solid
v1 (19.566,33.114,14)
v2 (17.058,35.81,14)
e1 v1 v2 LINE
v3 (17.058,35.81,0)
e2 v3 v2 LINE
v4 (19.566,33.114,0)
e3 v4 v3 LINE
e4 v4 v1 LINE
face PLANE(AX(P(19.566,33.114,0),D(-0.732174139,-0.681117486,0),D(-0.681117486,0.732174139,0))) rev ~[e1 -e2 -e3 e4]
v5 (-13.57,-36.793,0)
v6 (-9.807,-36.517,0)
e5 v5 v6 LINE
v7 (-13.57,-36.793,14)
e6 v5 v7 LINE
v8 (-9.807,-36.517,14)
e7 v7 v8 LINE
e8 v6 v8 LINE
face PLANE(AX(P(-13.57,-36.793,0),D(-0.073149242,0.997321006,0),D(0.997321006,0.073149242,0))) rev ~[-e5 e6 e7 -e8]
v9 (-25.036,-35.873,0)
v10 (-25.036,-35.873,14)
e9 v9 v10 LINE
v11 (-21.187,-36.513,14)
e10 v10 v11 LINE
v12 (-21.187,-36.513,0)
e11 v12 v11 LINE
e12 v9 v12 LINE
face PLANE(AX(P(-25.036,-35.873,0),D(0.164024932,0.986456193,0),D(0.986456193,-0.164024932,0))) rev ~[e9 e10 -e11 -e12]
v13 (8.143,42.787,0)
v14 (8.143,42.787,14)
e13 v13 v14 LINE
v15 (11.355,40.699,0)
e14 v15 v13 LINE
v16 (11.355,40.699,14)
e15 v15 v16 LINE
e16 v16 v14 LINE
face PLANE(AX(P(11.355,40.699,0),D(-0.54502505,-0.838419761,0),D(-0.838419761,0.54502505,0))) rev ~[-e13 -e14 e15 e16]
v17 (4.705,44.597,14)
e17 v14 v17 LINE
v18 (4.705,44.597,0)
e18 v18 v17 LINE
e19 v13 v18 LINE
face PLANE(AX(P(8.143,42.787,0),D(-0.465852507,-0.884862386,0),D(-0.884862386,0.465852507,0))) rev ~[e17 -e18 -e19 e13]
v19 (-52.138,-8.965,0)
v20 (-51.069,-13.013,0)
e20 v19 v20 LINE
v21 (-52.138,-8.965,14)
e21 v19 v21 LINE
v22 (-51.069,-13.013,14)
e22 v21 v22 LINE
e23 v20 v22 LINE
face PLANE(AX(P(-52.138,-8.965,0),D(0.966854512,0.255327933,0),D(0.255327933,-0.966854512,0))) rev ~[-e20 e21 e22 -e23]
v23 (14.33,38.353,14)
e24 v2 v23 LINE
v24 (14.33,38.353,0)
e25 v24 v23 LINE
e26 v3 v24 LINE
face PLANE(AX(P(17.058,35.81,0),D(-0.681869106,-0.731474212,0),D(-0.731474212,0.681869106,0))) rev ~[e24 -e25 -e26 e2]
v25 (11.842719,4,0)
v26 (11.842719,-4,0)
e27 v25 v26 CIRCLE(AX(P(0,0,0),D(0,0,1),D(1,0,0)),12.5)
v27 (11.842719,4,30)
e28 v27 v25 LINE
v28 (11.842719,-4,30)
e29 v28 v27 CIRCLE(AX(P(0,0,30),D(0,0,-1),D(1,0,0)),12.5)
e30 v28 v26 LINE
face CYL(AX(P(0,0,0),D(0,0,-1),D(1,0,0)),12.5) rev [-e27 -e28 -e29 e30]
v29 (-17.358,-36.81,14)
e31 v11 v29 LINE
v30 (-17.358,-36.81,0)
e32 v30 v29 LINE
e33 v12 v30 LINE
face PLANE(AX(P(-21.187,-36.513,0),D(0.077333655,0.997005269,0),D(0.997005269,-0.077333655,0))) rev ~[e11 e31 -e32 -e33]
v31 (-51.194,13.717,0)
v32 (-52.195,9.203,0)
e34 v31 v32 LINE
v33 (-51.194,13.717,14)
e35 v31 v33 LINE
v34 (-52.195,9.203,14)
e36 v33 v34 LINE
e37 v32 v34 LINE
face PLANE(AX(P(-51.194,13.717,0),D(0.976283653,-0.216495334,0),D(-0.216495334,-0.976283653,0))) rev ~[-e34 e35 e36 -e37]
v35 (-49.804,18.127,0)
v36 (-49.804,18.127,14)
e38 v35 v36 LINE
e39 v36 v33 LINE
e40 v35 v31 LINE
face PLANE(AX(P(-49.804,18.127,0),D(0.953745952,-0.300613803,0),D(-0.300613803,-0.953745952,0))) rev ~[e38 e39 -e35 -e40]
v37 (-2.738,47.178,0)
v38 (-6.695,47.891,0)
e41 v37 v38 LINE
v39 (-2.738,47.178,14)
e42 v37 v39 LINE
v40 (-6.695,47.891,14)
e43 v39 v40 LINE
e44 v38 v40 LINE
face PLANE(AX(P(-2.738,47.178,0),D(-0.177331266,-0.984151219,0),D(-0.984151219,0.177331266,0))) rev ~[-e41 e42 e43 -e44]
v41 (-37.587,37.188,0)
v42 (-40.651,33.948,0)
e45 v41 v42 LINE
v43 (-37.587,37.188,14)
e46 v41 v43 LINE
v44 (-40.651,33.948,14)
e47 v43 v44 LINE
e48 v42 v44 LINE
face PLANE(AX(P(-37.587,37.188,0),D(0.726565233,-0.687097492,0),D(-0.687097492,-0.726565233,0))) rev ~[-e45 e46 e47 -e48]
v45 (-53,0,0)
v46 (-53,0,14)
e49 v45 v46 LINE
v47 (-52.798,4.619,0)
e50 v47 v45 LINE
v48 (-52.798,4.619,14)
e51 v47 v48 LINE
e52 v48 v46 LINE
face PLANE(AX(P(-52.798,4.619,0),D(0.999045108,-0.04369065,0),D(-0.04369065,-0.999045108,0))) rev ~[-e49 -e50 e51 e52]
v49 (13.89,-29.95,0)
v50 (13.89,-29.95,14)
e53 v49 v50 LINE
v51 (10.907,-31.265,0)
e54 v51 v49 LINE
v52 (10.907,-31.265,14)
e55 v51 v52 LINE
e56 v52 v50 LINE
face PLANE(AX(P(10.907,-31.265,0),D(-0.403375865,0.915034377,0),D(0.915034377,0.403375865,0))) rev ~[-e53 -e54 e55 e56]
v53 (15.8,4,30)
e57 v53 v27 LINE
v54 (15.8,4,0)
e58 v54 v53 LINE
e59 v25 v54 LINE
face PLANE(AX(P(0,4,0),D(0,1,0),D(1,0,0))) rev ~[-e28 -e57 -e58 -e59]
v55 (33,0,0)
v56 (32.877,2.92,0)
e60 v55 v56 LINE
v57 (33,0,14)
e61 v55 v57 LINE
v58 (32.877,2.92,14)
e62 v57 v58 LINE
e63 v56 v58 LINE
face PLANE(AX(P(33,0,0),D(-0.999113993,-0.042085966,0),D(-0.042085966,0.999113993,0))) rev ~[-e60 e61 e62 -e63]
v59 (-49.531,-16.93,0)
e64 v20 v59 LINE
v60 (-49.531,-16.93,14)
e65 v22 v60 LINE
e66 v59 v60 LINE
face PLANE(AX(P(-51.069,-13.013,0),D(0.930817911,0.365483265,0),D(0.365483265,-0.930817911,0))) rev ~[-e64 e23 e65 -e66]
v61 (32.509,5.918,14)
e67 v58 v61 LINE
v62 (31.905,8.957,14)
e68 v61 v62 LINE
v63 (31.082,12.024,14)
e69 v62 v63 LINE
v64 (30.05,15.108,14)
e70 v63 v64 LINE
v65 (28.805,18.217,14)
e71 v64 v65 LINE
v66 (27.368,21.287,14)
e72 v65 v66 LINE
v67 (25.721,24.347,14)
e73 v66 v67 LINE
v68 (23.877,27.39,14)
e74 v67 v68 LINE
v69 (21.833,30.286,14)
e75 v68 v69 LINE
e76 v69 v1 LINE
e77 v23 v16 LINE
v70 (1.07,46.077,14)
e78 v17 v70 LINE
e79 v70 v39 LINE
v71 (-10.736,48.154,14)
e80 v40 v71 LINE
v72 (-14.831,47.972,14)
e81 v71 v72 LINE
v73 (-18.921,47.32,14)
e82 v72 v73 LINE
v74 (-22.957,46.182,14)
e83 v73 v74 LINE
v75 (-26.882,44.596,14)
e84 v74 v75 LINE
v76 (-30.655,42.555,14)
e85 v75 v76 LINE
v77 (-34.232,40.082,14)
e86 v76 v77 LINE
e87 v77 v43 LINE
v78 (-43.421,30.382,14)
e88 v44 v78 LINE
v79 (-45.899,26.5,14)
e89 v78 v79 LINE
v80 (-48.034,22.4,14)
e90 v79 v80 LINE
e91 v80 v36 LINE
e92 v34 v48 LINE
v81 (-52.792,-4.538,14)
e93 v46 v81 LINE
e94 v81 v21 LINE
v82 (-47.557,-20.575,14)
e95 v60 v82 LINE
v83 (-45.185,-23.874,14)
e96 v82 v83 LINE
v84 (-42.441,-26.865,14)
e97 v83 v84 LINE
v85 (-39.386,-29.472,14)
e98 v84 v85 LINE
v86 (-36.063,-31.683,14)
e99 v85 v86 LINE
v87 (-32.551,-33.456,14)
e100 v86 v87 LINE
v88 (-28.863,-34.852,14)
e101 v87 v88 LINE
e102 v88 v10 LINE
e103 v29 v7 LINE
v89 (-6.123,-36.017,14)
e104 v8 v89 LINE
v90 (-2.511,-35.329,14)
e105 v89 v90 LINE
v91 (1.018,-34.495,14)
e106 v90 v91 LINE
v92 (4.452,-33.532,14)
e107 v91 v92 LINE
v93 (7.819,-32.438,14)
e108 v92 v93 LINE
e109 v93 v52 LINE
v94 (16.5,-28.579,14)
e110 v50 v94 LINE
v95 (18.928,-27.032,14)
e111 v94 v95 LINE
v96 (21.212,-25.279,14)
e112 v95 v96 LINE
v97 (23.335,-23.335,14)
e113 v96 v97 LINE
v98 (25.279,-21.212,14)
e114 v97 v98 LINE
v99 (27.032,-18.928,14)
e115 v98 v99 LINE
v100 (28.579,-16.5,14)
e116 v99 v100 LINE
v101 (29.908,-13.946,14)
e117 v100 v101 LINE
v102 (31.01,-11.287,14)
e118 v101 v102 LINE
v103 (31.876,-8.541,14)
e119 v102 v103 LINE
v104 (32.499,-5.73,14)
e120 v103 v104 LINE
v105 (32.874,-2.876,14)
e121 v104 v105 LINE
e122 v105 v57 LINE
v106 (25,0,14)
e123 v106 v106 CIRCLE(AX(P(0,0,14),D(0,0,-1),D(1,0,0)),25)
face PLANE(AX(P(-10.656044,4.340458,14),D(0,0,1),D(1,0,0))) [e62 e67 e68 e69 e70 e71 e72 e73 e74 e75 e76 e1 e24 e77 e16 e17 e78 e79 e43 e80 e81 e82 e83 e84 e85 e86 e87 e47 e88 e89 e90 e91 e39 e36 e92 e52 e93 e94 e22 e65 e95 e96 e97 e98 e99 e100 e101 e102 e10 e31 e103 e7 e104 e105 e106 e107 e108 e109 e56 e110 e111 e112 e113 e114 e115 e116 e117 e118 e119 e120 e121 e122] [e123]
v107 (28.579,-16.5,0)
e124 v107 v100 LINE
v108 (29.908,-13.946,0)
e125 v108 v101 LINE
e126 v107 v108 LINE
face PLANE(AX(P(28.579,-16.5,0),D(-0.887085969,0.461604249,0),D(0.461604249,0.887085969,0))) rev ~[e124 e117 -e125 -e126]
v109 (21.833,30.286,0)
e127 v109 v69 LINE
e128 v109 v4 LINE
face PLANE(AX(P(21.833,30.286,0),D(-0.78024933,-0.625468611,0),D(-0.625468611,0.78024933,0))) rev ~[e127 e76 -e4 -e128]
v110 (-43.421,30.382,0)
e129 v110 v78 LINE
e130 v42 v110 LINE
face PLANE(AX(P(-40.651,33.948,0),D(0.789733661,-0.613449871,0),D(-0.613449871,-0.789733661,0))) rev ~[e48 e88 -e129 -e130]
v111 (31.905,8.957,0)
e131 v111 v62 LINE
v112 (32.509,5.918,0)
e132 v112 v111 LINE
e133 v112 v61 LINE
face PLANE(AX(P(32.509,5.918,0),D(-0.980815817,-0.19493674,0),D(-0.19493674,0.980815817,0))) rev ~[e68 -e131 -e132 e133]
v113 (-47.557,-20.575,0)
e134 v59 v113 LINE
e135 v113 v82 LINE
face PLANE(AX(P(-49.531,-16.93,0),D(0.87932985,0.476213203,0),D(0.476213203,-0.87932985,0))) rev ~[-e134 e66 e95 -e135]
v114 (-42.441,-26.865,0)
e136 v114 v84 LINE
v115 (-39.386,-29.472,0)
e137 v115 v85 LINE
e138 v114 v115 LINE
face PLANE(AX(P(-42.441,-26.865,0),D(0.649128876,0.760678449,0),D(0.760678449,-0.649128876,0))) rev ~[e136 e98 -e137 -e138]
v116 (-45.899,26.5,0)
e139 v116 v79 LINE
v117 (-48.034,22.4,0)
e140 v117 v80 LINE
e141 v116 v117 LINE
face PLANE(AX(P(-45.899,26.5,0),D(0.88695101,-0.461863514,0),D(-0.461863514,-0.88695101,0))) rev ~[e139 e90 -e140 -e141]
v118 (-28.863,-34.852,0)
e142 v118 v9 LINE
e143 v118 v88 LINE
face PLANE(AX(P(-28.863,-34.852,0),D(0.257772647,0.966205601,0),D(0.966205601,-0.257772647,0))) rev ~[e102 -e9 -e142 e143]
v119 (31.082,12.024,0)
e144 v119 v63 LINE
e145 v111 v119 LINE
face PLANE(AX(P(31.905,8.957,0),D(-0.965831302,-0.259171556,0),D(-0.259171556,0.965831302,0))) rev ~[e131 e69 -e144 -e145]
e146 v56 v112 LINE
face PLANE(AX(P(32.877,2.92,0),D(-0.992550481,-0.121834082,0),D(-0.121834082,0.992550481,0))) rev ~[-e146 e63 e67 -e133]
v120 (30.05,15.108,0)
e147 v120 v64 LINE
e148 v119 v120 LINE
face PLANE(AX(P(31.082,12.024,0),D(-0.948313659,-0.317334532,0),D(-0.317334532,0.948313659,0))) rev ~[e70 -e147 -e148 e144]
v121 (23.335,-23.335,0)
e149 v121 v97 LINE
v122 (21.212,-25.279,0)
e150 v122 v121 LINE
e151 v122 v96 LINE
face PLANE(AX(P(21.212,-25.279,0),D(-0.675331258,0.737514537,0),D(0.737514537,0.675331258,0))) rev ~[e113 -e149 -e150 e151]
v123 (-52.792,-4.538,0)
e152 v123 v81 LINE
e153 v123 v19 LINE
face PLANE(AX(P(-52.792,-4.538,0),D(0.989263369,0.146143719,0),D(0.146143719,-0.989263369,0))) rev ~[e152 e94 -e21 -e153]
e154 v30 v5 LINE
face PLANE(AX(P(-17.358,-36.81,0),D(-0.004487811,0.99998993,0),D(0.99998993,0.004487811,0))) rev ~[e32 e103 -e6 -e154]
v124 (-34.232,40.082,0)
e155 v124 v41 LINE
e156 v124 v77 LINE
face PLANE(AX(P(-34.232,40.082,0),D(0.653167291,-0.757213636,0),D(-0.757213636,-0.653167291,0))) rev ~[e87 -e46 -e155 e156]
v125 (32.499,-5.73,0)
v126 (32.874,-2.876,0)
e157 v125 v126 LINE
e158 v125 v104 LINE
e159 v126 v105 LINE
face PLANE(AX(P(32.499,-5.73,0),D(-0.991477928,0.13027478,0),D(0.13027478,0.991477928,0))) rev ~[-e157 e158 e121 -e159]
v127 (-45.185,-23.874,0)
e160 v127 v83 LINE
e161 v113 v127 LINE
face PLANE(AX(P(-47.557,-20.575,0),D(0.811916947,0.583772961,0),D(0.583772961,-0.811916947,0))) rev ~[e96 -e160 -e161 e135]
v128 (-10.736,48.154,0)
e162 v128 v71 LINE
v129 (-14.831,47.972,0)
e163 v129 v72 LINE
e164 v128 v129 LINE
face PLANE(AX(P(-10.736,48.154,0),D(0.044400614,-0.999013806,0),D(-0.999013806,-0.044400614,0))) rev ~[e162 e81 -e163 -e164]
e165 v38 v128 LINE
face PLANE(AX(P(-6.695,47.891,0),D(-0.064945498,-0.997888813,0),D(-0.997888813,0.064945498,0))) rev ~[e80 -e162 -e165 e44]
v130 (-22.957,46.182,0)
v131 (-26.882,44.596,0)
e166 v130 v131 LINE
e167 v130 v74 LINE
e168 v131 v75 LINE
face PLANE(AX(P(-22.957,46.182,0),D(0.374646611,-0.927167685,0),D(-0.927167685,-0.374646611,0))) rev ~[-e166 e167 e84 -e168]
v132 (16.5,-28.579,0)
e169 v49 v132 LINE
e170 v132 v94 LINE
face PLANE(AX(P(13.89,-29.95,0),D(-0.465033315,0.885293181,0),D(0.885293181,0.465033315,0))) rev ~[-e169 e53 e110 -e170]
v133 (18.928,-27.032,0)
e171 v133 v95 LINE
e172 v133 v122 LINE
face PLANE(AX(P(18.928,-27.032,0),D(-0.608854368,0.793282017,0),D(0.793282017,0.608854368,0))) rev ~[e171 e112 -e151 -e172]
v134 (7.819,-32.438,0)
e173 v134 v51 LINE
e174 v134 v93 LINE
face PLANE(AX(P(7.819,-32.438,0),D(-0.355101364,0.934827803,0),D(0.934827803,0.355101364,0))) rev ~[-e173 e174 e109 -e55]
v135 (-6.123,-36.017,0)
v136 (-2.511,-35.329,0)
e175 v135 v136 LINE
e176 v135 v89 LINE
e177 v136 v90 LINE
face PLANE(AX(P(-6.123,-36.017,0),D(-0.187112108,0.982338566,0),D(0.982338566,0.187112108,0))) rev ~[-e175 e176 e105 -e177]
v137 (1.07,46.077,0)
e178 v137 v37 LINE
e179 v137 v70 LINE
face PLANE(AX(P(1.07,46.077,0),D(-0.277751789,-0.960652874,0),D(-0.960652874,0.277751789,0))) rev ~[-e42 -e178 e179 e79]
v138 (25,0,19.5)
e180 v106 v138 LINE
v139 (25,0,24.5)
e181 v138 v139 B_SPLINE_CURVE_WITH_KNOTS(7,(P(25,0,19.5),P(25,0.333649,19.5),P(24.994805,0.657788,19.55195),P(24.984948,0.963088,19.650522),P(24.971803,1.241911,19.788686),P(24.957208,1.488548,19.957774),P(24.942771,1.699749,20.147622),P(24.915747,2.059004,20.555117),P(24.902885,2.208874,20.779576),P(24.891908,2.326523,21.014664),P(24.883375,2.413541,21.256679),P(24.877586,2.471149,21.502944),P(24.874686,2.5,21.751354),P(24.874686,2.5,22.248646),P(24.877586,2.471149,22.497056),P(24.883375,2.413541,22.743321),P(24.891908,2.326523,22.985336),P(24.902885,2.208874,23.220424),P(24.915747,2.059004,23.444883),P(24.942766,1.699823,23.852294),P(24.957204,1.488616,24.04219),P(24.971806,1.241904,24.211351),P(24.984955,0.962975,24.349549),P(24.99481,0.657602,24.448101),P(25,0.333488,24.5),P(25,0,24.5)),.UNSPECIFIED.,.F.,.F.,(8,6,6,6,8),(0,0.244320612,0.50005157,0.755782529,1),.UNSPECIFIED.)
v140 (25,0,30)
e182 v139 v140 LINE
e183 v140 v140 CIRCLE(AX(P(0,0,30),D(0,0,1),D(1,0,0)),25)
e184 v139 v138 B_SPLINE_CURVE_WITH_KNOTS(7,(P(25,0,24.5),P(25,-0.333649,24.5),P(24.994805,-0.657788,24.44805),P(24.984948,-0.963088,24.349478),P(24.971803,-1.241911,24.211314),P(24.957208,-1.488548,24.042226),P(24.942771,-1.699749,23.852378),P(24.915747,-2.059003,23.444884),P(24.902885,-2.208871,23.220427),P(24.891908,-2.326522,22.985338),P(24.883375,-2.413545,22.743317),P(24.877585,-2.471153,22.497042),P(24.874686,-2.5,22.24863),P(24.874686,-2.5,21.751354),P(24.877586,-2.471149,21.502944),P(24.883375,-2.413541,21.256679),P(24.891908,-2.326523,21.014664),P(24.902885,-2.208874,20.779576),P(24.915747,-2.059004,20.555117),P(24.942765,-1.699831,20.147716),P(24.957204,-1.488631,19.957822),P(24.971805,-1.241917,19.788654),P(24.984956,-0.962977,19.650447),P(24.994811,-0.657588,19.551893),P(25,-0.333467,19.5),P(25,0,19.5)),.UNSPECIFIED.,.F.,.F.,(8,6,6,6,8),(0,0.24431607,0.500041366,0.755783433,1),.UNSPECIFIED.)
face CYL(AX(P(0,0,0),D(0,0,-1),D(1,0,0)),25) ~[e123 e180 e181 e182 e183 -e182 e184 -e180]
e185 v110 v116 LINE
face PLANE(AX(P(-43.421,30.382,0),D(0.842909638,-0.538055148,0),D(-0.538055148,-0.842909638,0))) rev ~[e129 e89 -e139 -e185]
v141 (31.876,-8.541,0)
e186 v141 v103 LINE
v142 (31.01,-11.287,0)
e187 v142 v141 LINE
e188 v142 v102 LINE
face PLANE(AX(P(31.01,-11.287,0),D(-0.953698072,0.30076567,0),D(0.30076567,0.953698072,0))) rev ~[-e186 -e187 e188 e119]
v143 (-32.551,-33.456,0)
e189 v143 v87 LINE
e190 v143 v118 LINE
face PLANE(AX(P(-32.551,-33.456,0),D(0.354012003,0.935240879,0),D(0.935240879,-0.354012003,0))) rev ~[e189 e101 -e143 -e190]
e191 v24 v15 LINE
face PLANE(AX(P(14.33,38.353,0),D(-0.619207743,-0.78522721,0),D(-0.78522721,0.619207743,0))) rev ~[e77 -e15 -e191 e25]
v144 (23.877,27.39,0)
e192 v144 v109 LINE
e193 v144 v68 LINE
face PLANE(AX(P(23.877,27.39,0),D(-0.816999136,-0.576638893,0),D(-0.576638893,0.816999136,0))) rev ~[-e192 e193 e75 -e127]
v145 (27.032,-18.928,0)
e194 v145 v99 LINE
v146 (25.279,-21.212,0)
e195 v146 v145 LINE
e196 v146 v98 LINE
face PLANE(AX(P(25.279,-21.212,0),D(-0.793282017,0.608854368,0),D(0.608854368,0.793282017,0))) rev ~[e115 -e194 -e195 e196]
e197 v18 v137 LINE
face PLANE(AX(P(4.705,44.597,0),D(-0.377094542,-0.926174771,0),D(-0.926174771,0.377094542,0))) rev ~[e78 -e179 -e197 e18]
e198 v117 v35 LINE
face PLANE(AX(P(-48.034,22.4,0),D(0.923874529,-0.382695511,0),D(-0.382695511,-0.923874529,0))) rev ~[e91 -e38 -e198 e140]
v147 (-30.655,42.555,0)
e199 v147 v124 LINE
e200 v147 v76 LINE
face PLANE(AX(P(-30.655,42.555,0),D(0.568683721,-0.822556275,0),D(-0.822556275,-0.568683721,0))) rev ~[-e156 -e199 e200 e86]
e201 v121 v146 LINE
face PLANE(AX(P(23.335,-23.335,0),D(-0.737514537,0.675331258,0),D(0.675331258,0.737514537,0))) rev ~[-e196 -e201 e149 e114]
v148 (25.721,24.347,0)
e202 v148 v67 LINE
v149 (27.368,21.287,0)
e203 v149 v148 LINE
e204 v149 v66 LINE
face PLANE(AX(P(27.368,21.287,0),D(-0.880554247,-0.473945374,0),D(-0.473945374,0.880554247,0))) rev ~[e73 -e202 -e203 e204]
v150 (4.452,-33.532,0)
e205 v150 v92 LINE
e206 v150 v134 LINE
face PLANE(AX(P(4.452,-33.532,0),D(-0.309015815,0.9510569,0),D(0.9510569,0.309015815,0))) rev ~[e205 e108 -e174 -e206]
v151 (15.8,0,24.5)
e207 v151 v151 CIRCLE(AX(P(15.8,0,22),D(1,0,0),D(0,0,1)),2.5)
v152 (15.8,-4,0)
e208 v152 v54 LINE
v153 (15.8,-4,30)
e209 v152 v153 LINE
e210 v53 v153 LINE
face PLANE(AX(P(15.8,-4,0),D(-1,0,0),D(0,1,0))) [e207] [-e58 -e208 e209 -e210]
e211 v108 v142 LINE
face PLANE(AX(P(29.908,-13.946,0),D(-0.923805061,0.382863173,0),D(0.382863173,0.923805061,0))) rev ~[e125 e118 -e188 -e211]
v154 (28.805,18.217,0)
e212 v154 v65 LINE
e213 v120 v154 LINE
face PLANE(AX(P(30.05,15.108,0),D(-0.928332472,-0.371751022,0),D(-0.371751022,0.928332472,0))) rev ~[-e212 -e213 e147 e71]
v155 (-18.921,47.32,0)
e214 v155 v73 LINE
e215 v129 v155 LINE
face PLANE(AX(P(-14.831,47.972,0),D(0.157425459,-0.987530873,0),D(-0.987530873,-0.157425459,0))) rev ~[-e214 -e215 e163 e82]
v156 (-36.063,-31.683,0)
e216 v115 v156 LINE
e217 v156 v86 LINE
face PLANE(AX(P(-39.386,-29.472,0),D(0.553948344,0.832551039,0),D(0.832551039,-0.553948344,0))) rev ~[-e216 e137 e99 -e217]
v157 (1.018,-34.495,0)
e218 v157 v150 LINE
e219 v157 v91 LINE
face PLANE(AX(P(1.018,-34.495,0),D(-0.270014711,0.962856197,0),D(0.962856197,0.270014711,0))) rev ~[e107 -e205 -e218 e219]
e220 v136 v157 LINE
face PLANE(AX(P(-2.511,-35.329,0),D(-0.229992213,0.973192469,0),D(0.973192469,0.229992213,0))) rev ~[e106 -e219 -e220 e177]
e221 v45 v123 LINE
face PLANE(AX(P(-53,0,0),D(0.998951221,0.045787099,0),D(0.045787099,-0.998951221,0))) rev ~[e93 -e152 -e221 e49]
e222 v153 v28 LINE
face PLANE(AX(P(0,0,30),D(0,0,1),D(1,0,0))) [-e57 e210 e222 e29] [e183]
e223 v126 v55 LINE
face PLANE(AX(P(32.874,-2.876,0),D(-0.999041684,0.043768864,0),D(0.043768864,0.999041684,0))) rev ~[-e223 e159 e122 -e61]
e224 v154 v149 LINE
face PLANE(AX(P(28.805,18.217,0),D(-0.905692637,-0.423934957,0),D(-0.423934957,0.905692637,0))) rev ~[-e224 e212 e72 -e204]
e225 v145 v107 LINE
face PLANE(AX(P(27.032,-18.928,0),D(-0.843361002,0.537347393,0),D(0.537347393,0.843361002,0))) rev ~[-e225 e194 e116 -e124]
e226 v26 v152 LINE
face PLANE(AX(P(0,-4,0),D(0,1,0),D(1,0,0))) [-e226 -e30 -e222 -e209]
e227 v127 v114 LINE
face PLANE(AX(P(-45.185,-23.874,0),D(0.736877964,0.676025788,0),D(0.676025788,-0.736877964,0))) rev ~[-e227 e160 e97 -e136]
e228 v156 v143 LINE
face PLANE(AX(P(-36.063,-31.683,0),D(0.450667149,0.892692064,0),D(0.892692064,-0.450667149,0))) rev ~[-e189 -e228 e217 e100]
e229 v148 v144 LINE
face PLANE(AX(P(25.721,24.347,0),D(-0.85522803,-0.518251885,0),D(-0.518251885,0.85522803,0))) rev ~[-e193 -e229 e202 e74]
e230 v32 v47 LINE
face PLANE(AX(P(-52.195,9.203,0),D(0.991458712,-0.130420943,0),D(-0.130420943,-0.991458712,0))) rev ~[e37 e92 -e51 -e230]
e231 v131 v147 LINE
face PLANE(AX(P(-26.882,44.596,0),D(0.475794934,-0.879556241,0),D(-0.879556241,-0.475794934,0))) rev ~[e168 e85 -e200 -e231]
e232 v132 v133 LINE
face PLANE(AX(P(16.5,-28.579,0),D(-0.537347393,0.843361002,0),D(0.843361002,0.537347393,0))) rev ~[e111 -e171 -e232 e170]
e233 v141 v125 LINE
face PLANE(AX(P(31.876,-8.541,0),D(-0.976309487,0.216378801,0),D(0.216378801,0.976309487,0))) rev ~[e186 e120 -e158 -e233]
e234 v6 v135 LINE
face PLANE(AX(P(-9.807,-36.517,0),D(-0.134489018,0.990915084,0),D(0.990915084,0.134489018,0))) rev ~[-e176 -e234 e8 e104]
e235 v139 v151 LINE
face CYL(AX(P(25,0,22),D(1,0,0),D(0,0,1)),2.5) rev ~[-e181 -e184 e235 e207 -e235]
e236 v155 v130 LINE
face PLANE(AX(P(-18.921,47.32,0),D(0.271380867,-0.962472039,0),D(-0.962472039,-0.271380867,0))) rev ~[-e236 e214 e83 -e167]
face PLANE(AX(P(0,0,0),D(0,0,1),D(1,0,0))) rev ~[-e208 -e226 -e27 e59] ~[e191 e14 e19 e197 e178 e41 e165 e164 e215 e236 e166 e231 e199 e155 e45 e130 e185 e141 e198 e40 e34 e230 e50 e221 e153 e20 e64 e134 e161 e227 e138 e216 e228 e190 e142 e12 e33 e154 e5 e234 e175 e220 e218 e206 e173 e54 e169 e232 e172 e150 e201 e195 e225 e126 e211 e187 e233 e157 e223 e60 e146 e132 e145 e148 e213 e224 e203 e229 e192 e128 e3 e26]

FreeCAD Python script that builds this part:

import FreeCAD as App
import Part
import Sketcher

V = App.Vector
Q = App.Units.Quantity

doc = App.newDocument("Part")
body = doc.addObject("PartDesign::Body", "Body")

# Sketch on XY plane
sketch1 = body.newObject("Sketcher::SketchObject", "Sketch")
sketch1.AttachmentSupport = (doc.getObject("XY_Plane"), [""])
sketch1.MapMode = "FlatFace"
sketch1.addGeometry(Part.LineSegment(V(33, 0, 0), V(32.9, 2.9, 0)), False)
sketch1.addGeometry(Part.LineSegment(V(32.9, 2.9, 0), V(32.5, 5.9, 0)), False)
sketch1.addGeometry(Part.LineSegment(V(32.5, 5.9, 0), V(31.9, 9, 0)), False)
sketch1.addGeometry(Part.LineSegment(V(31.9, 9, 0), V(31.1, 12, 0)), False)
sketch1.addGeometry(Part.LineSegment(V(31.1, 12, 0), V(30.1, 15.1, 0)), False)
sketch1.addGeometry(Part.LineSegment(V(30.1, 15.1, 0), V(28.8, 18.2, 0)), False)
sketch1.addGeometry(Part.LineSegment(V(28.8, 18.2, 0), V(27.4, 21.3, 0)), False)
sketch1.addGeometry(Part.LineSegment(V(27.4, 21.3, 0), V(25.7, 24.3, 0)), False)
sketch1.addGeometry(Part.LineSegment(V(25.7, 24.3, 0), V(23.9, 27.4, 0)), False)
sketch1.addGeometry(Part.LineSegment(V(23.9, 27.4, 0), V(21.8, 30.3, 0)), False)
sketch1.addGeometry(Part.LineSegment(V(21.8, 30.3, 0), V(19.6, 33.1, 0)), False)
sketch1.addGeometry(Part.LineSegment(V(19.6, 33.1, 0), V(17.1, 35.8, 0)), False)
sketch1.addGeometry(Part.LineSegment(V(17.1, 35.8, 0), V(14.3, 38.4, 0)), False)
sketch1.addGeometry(Part.LineSegment(V(14.3, 38.4, 0), V(11.4, 40.7, 0)), False)
sketch1.addGeometry(Part.LineSegment(V(11.4, 40.7, 0), V(8.1, 42.8, 0)), False)
sketch1.addGeometry(Part.LineSegment(V(8.1, 42.8, 0), V(4.7, 44.6, 0)), False)
sketch1.addGeometry(Part.LineSegment(V(4.7, 44.6, 0), V(1.1, 46.1, 0)), False)
sketch1.addGeometry(Part.LineSegment(V(1.1, 46.1, 0), V(-2.7, 47.2, 0)), False)
sketch1.addGeometry(Part.LineSegment(V(-2.7, 47.2, 0), V(-6.7, 47.9, 0)), False)
sketch1.addGeometry(Part.LineSegment(V(-6.7, 47.9, 0), V(-10.7, 48.2, 0)), False)
sketch1.addGeometry(Part.LineSegment(V(-10.7, 48.2, 0), V(-14.8, 48, 0)), False)
sketch1.addGeometry(Part.LineSegment(V(-14.8, 48, 0), V(-18.9, 47.3, 0)), False)
sketch1.addGeometry(Part.LineSegment(V(-18.9, 47.3, 0), V(-23, 46.2, 0)), False)
sketch1.addGeometry(Part.LineSegment(V(-23, 46.2, 0), V(-26.9, 44.6, 0)), False)
sketch1.addGeometry(Part.LineSegment(V(-26.9, 44.6, 0), V(-30.7, 42.6, 0)), False)
sketch1.addGeometry(Part.LineSegment(V(-30.7, 42.6, 0), V(-34.2, 40.1, 0)), False)
sketch1.addGeometry(Part.LineSegment(V(-34.2, 40.1, 0), V(-37.6, 37.2, 0)), False)
sketch1.addGeometry(Part.LineSegment(V(-37.6, 37.2, 0), V(-40.7, 33.9, 0)), False)
sketch1.addGeometry(Part.LineSegment(V(-40.7, 33.9, 0), V(-43.4, 30.4, 0)), False)
sketch1.addGeometry(Part.LineSegment(V(-43.4, 30.4, 0), V(-45.9, 26.5, 0)), False)
sketch1.addGeometry(Part.LineSegment(V(-45.9, 26.5, 0), V(-48, 22.4, 0)), False)
sketch1.addGeometry(Part.LineSegment(V(-48, 22.4, 0), V(-49.8, 18.1, 0)), False)
sketch1.addGeometry(Part.LineSegment(V(-49.8, 18.1, 0), V(-51.2, 13.7, 0)), False)
sketch1.addGeometry(Part.LineSegment(V(-51.2, 13.7, 0), V(-52.2, 9.2, 0)), False)
sketch1.addGeometry(Part.LineSegment(V(-52.2, 9.2, 0), V(-52.8, 4.6, 0)), False)
sketch1.addGeometry(Part.LineSegment(V(-52.8, 4.6, 0), V(-53, 0, 0)), False)
sketch1.addGeometry(Part.LineSegment(V(-53, 0, 0), V(-52.8, -4.5, 0)), False)
sketch1.addGeometry(Part.LineSegment(V(-52.8, -4.5, 0), V(-52.1, -9, 0)), False)
sketch1.addGeometry(Part.LineSegment(V(-52.1, -9, 0), V(-51.1, -13, 0)), False)
sketch1.addGeometry(Part.LineSegment(V(-51.1, -13, 0), V(-49.5, -16.9, 0)), False)
sketch1.addGeometry(Part.LineSegment(V(-49.5, -16.9, 0), V(-47.6, -20.6, 0)), False)
sketch1.addGeometry(Part.LineSegment(V(-47.6, -20.6, 0), V(-45.2, -23.9, 0)), False)
sketch1.addGeometry(Part.LineSegment(V(-45.2, -23.9, 0), V(-42.4, -26.9, 0)), False)
sketch1.addGeometry(Part.LineSegment(V(-42.4, -26.9, 0), V(-39.4, -29.5, 0)), False)
sketch1.addGeometry(Part.LineSegment(V(-39.4, -29.5, 0), V(-36.1, -31.7, 0)), False)
sketch1.addGeometry(Part.LineSegment(V(-36.1, -31.7, 0), V(-32.6, -33.5, 0)), False)
sketch1.addGeometry(Part.LineSegment(V(-32.6, -33.5, 0), V(-28.9, -34.9, 0)), False)
sketch1.addGeometry(Part.LineSegment(V(-28.9, -34.9, 0), V(-25, -35.9, 0)), False)
sketch1.addGeometry(Part.LineSegment(V(-25, -35.9, 0), V(-21.2, -36.5, 0)), False)
sketch1.addGeometry(Part.LineSegment(V(-21.2, -36.5, 0), V(-17.4, -36.8, 0)), False)
sketch1.addGeometry(Part.LineSegment(V(-17.4, -36.8, 0), V(-13.6, -36.8, 0)), False)
sketch1.addGeometry(Part.LineSegment(V(-13.6, -36.8, 0), V(-9.8, -36.5, 0)), False)
sketch1.addGeometry(Part.LineSegment(V(-9.8, -36.5, 0), V(-6.1, -36, 0)), False)
sketch1.addGeometry(Part.LineSegment(V(-6.1, -36, 0), V(-2.5, -35.3, 0)), False)
sketch1.addGeometry(Part.LineSegment(V(-2.5, -35.3, 0), V(1, -34.5, 0)), False)
sketch1.addGeometry(Part.LineSegment(V(1, -34.5, 0), V(4.5, -33.5, 0)), False)
sketch1.addGeometry(Part.LineSegment(V(4.5, -33.5, 0), V(7.8, -32.4, 0)), False)
sketch1.addGeometry(Part.LineSegment(V(7.8, -32.4, 0), V(10.9, -31.3, 0)), False)
sketch1.addGeometry(Part.LineSegment(V(10.9, -31.3, 0), V(13.9, -29.9, 0)), False)
sketch1.addGeometry(Part.LineSegment(V(13.9, -29.9, 0), V(16.5, -28.6, 0)), False)
sketch1.addGeometry(Part.LineSegment(V(16.5, -28.6, 0), V(18.9, -27, 0)), False)
sketch1.addGeometry(Part.LineSegment(V(18.9, -27, 0), V(21.2, -25.3, 0)), False)
sketch1.addGeometry(Part.LineSegment(V(21.2, -25.3, 0), V(23.3, -23.3, 0)), False)
sketch1.addGeometry(Part.LineSegment(V(23.3, -23.3, 0), V(25.3, -21.2, 0)), False)
sketch1.addGeometry(Part.LineSegment(V(25.3, -21.2, 0), V(27, -18.9, 0)), False)
sketch1.addGeometry(Part.LineSegment(V(27, -18.9, 0), V(28.6, -16.5, 0)), False)
sketch1.addGeometry(Part.LineSegment(V(28.6, -16.5, 0), V(29.9, -13.9, 0)), False)
sketch1.addGeometry(Part.LineSegment(V(29.9, -13.9, 0), V(31, -11.3, 0)), False)
sketch1.addGeometry(Part.LineSegment(V(31, -11.3, 0), V(31.9, -8.5, 0)), False)
sketch1.addGeometry(Part.LineSegment(V(31.9, -8.5, 0), V(32.5, -5.7, 0)), False)
sketch1.addGeometry(Part.LineSegment(V(32.5, -5.7, 0), V(32.9, -2.9, 0)), False)
sketch1.addGeometry(Part.LineSegment(V(32.9, -2.9, 0), V(33, 0, 0)), False)
sketch1.addConstraint(Sketcher.Constraint("Coincident", 0, 2, 1, 1))
sketch1.addConstraint(Sketcher.Constraint("Coincident", 1, 2, 2, 1))
sketch1.addConstraint(Sketcher.Constraint("Coincident", 2, 2, 3, 1))
sketch1.addConstraint(Sketcher.Constraint("Coincident", 3, 2, 4, 1))
sketch1.addConstraint(Sketcher.Constraint("Coincident", 4, 2, 5, 1))
sketch1.addConstraint(Sketcher.Constraint("Coincident", 5, 2, 6, 1))
sketch1.addConstraint(Sketcher.Constraint("Coincident", 6, 2, 7, 1))
sketch1.addConstraint(Sketcher.Constraint("Coincident", 7, 2, 8, 1))
sketch1.addConstraint(Sketcher.Constraint("Coincident", 8, 2, 9, 1))
sketch1.addConstraint(Sketcher.Constraint("Coincident", 9, 2, 10, 1))
sketch1.addConstraint(Sketcher.Constraint("Coincident", 10, 2, 11, 1))
sketch1.addConstraint(Sketcher.Constraint("Coincident", 11, 2, 12, 1))
sketch1.addConstraint(Sketcher.Constraint("Coincident", 12, 2, 13, 1))
sketch1.addConstraint(Sketcher.Constraint("Coincident", 13, 2, 14, 1))
sketch1.addConstraint(Sketcher.Constraint("Coincident", 14, 2, 15, 1))
sketch1.addConstraint(Sketcher.Constraint("Coincident", 15, 2, 16, 1))
sketch1.addConstraint(Sketcher.Constraint("Coincident", 16, 2, 17, 1))
sketch1.addConstraint(Sketcher.Constraint("Coincident", 17, 2, 18, 1))
sketch1.addConstraint(Sketcher.Constraint("Coincident", 18, 2, 19, 1))
sketch1.addConstraint(Sketcher.Constraint("Coincident", 19, 2, 20, 1))
sketch1.addConstraint(Sketcher.Constraint("Coincident", 20, 2, 21, 1))
sketch1.addConstraint(Sketcher.Constraint("Coincident", 21, 2, 22, 1))
sketch1.addConstraint(Sketcher.Constraint("Coincident", 22, 2, 23, 1))
sketch1.addConstraint(Sketcher.Constraint("Coincident", 23, 2, 24, 1))
sketch1.addConstraint(Sketcher.Constraint("Coincident", 24, 2, 25, 1))
sketch1.addConstraint(Sketcher.Constraint("Coincident", 25, 2, 26, 1))
sketch1.addConstraint(Sketcher.Constraint("Coincident", 26, 2, 27, 1))
sketch1.addConstraint(Sketcher.Constraint("Coincident", 27, 2, 28, 1))
sketch1.addConstraint(Sketcher.Constraint("Coincident", 28, 2, 29, 1))
sketch1.addConstraint(Sketcher.Constraint("Coincident", 29, 2, 30, 1))
sketch1.addConstraint(Sketcher.Constraint("Coincident", 30, 2, 31, 1))
sketch1.addConstraint(Sketcher.Constraint("Coincident", 31, 2, 32, 1))
sketch1.addConstraint(Sketcher.Constraint("Coincident", 32, 2, 33, 1))
sketch1.addConstraint(Sketcher.Constraint("Coincident", 33, 2, 34, 1))
sketch1.addConstraint(Sketcher.Constraint("Coincident", 34, 2, 35, 1))
sketch1.addConstraint(Sketcher.Constraint("Coincident", 35, 2, 36, 1))
sketch1.addConstraint(Sketcher.Constraint("Coincident", 36, 2, 37, 1))
sketch1.addConstraint(Sketcher.Constraint("Coincident", 37, 2, 38, 1))
sketch1.addConstraint(Sketcher.Constraint("Coincident", 38, 2, 39, 1))
sketch1.addConstraint(Sketcher.Constraint("Coincident", 39, 2, 40, 1))
sketch1.addConstraint(Sketcher.Constraint("Coincident", 40, 2, 41, 1))
sketch1.addConstraint(Sketcher.Constraint("Coincident", 41, 2, 42, 1))
sketch1.addConstraint(Sketcher.Constraint("Coincident", 42, 2, 43, 1))
sketch1.addConstraint(Sketcher.Constraint("Coincident", 43, 2, 44, 1))
sketch1.addConstraint(Sketcher.Constraint("Coincident", 44, 2, 45, 1))
sketch1.addConstraint(Sketcher.Constraint("Coincident", 45, 2, 46, 1))
sketch1.addConstraint(Sketcher.Constraint("Coincident", 46, 2, 47, 1))
sketch1.addConstraint(Sketcher.Constraint("Coincident", 47, 2, 48, 1))
sketch1.addConstraint(Sketcher.Constraint("Coincident", 48, 2, 49, 1))
sketch1.addConstraint(Sketcher.Constraint("Coincident", 49, 2, 50, 1))
sketch1.addConstraint(Sketcher.Constraint("Coincident", 50, 2, 51, 1))
sketch1.addConstraint(Sketcher.Constraint("Coincident", 51, 2, 52, 1))
sketch1.addConstraint(Sketcher.Constraint("Coincident", 52, 2, 53, 1))
sketch1.addConstraint(Sketcher.Constraint("Coincident", 53, 2, 54, 1))
sketch1.addConstraint(Sketcher.Constraint("Coincident", 54, 2, 55, 1))
sketch1.addConstraint(Sketcher.Constraint("Coincident", 55, 2, 56, 1))
sketch1.addConstraint(Sketcher.Constraint("Coincident", 56, 2, 57, 1))
sketch1.addConstraint(Sketcher.Constraint("Coincident", 57, 2, 58, 1))
sketch1.addConstraint(Sketcher.Constraint("Coincident", 58, 2, 59, 1))
sketch1.addConstraint(Sketcher.Constraint("Coincident", 59, 2, 60, 1))
sketch1.addConstraint(Sketcher.Constraint("Coincident", 60, 2, 61, 1))
sketch1.addConstraint(Sketcher.Constraint("Coincident", 61, 2, 62, 1))
sketch1.addConstraint(Sketcher.Constraint("Coincident", 62, 2, 63, 1))
sketch1.addConstraint(Sketcher.Constraint("Coincident", 63, 2, 64, 1))
sketch1.addConstraint(Sketcher.Constraint("Coincident", 64, 2, 65, 1))
sketch1.addConstraint(Sketcher.Constraint("Coincident", 65, 2, 66, 1))
sketch1.addConstraint(Sketcher.Constraint("Coincident", 66, 2, 67, 1))
sketch1.addConstraint(Sketcher.Constraint("Coincident", 67, 2, 68, 1))
sketch1.addConstraint(Sketcher.Constraint("Coincident", 68, 2, 69, 1))
sketch1.addConstraint(Sketcher.Constraint("Coincident", 69, 2, 70, 1))
sketch1.addConstraint(Sketcher.Constraint("Coincident", 70, 2, 71, 1))
sketch1.addConstraint(Sketcher.Constraint("Coincident", 71, 2, 0, 1))
sketch1.addConstraint(Sketcher.Constraint("PointOnObject", 35, 2, -1))
sketch1.addConstraint(Sketcher.Constraint("PointOnObject", 71, 2, -1))
sketch1.addConstraint(Sketcher.Constraint("Equal", 62, 63))
sketch1.addConstraint(Sketcher.Constraint("Equal", 61, 64))
sketch1.addConstraint(Sketcher.Constraint("Equal", 60, 65))
sketch1.addConstraint(Sketcher.Constraint("DistanceX", 35, 2, -1, 1, Q("53 mm")))
sketch1.addConstraint(Sketcher.Constraint("DistanceX", -1, 1, 71, 2, Q("33 mm")))
sketch1.addConstraint(Sketcher.Constraint("DistanceY", -1, 1, 29, 2, Q("26.5 mm")))
sketch1.addConstraint(Sketcher.Constraint("DistanceY", -1, 1, 30, 2, Q("22.4 mm")))
sketch1.addConstraint(Sketcher.Constraint("DistanceX", -1, 1, 59, 2, Q("16.5 mm")))
sketch1.addConstraint(Sketcher.Constraint("DistanceY", 65, 2, -1, 1, Q("16.5 mm")))
sketch1.addConstraint(Sketcher.Constraint("DistanceY", -1, 1, 0, 2, Q("2.92 mm")))
sketch1.addConstraint(Sketcher.Constraint("DistanceX", -1, 1, 4, 2, Q("30.05 mm")))
sketch1.addConstraint(Sketcher.Constraint("DistanceY", -1, 1, 8, 2, Q("27.39 mm")))
sketch1.addConstraint(Sketcher.Constraint("DistanceY", -1, 1, 11, 2, Q("35.81 mm")))
sketch1.addConstraint(Sketcher.Constraint("DistanceX", -1, 1, 12, 2, Q("14.33 mm")))
sketch1.addConstraint(Sketcher.Constraint("DistanceX", -1, 1, 16, 2, Q("1.07 mm")))
sketch1.addConstraint(Sketcher.Constraint("DistanceY", -1, 1, 21, 2, Q("47.32 mm")))
sketch1.addConstraint(Sketcher.Constraint("DistanceY", 39, 2, -1, 1, Q("16.93 mm")))
sketch1.addConstraint(Sketcher.Constraint("DistanceY", 49, 2, -1, 1, Q("36.81 mm")))
sketch1.addConstraint(Sketcher.Constraint("DistanceX", 50, 2, -1, 1, Q("13.57 mm")))
sketch1.addConstraint(Sketcher.Constraint("DistanceX", -1, 1, 58, 2, Q("13.89 mm")))
sketch1.addConstraint(Sketcher.Constraint("DistanceY", 58, 2, -1, 1, Q("29.95 mm")))
sketch1.addConstraint(Sketcher.Constraint("DistanceX", -1, 1, 67, 2, Q("31.01 mm")))
sketch1.addConstraint(Sketcher.Constraint("DistanceY", 69, 2, -1, 1, Q("5.73 mm")))
sketch1.addConstraint(Sketcher.Constraint("DistanceX", -1, 1, 0, 2, Q("32.877 mm")))
sketch1.addConstraint(Sketcher.Constraint("DistanceX", -1, 1, 1, 2, Q("32.509 mm")))
sketch1.addConstraint(Sketcher.Constraint("DistanceY", -1, 1, 1, 2, Q("5.918 mm")))
sketch1.addConstraint(Sketcher.Constraint("DistanceX", -1, 1, 2, 2, Q("31.905 mm")))
sketch1.addConstraint(Sketcher.Constraint("DistanceY", -1, 1, 2, 2, Q("8.957 mm")))
sketch1.addConstraint(Sketcher.Constraint("DistanceX", -1, 1, 3, 2, Q("31.082 mm")))
sketch1.addConstraint(Sketcher.Constraint("DistanceY", -1, 1, 3, 2, Q("12.024 mm")))
sketch1.addConstraint(Sketcher.Constraint("DistanceY", -1, 1, 4, 2, Q("15.108 mm")))
sketch1.addConstraint(Sketcher.Constraint("DistanceX", -1, 1, 5, 2, Q("28.805 mm")))
sketch1.addConstraint(Sketcher.Constraint("DistanceY", -1, 1, 5, 2, Q("18.217 mm")))
sketch1.addConstraint(Sketcher.Constraint("DistanceX", -1, 1, 6, 2, Q("27.368 mm")))
sketch1.addConstraint(Sketcher.Constraint("DistanceY", -1, 1, 6, 2, Q("21.287 mm")))
sketch1.addConstraint(Sketcher.Constraint("DistanceX", -1, 1, 7, 2, Q("25.721 mm")))
sketch1.addConstraint(Sketcher.Constraint("DistanceY", -1, 1, 7, 2, Q("24.347 mm")))
sketch1.addConstraint(Sketcher.Constraint("DistanceX", -1, 1, 8, 2, Q("23.877 mm")))
sketch1.addConstraint(Sketcher.Constraint("DistanceX", -1, 1, 9, 2, Q("21.833 mm")))
sketch1.addConstraint(Sketcher.Constraint("DistanceY", -1, 1, 9, 2, Q("30.286 mm")))
sketch1.addConstraint(Sketcher.Constraint("DistanceX", -1, 1, 10, 2, Q("19.566 mm")))
sketch1.addConstraint(Sketcher.Constraint("DistanceY", -1, 1, 10, 2, Q("33.114 mm")))
sketch1.addConstraint(Sketcher.Constraint("DistanceX", -1, 1, 11, 2, Q("17.058 mm")))
sketch1.addConstraint(Sketcher.Constraint("DistanceY", -1, 1, 12, 2, Q("38.353 mm")))
sketch1.addConstraint(Sketcher.Constraint("DistanceX", -1, 1, 13, 2, Q("11.355 mm")))
sketch1.addConstraint(Sketcher.Constraint("DistanceY", -1, 1, 13, 2, Q("40.699 mm")))
sketch1.addConstraint(Sketcher.Constraint("DistanceX", -1, 1, 14, 2, Q("8.143 mm")))
sketch1.addConstraint(Sketcher.Constraint("DistanceY", -1, 1, 14, 2, Q("42.787 mm")))
sketch1.addConstraint(Sketcher.Constraint("DistanceX", -1, 1, 15, 2, Q("4.705 mm")))
sketch1.addConstraint(Sketcher.Constraint("DistanceY", -1, 1, 15, 2, Q("44.597 mm")))
sketch1.addConstraint(Sketcher.Constraint("DistanceY", -1, 1, 16, 2, Q("46.077 mm")))
sketch1.addConstraint(Sketcher.Constraint("DistanceX", 17, 2, -1, 1, Q("2.738 mm")))
sketch1.addConstraint(Sketcher.Constraint("DistanceY", -1, 1, 17, 2, Q("47.178 mm")))
sketch1.addConstraint(Sketcher.Constraint("DistanceX", 18, 2, -1, 1, Q("6.695 mm")))
sketch1.addConstraint(Sketcher.Constraint("DistanceY", -1, 1, 18, 2, Q("47.891 mm")))
sketch1.addConstraint(Sketcher.Constraint("DistanceX", 19, 2, -1, 1, Q("10.736 mm")))
sketch1.addConstraint(Sketcher.Constraint("DistanceY", -1, 1, 19, 2, Q("48.154 mm")))
sketch1.addConstraint(Sketcher.Constraint("DistanceX", 20, 2, -1, 1, Q("14.831 mm")))
sketch1.addConstraint(Sketcher.Constraint("DistanceY", -1, 1, 20, 2, Q("47.972 mm")))
sketch1.addConstraint(Sketcher.Constraint("DistanceX", 21, 2, -1, 1, Q("18.921 mm")))
sketch1.addConstraint(Sketcher.Constraint("DistanceX", 22, 2, -1, 1, Q("22.957 mm")))
sketch1.addConstraint(Sketcher.Constraint("DistanceY", -1, 1, 22, 2, Q("46.182 mm")))
sketch1.addConstraint(Sketcher.Constraint("DistanceX", 23, 2, -1, 1, Q("26.882 mm")))
sketch1.addConstraint(Sketcher.Constraint("DistanceY", -1, 1, 23, 2, Q("44.596 mm")))
sketch1.addConstraint(Sketcher.Constraint("DistanceX", 24, 2, -1, 1, Q("30.655 mm")))
sketch1.addConstraint(Sketcher.Constraint("DistanceY", -1, 1, 24, 2, Q("42.555 mm")))
sketch1.addConstraint(Sketcher.Constraint("DistanceX", 25, 2, -1, 1, Q("34.232 mm")))
sketch1.addConstraint(Sketcher.Constraint("DistanceY", -1, 1, 25, 2, Q("40.082 mm")))
sketch1.addConstraint(Sketcher.Constraint("DistanceX", 26, 2, -1, 1, Q("37.587 mm")))
sketch1.addConstraint(Sketcher.Constraint("DistanceY", -1, 1, 26, 2, Q("37.188 mm")))
sketch1.addConstraint(Sketcher.Constraint("DistanceX", 27, 2, -1, 1, Q("40.651 mm")))
sketch1.addConstraint(Sketcher.Constraint("DistanceY", -1, 1, 27, 2, Q("33.948 mm")))
sketch1.addConstraint(Sketcher.Constraint("DistanceX", 28, 2, -1, 1, Q("43.421 mm")))
sketch1.addConstraint(Sketcher.Constraint("DistanceY", -1, 1, 28, 2, Q("30.382 mm")))
sketch1.addConstraint(Sketcher.Constraint("DistanceX", 29, 2, -1, 1, Q("45.899 mm")))
sketch1.addConstraint(Sketcher.Constraint("DistanceX", 30, 2, -1, 1, Q("48.034 mm")))
sketch1.addConstraint(Sketcher.Constraint("DistanceX", 31, 2, -1, 1, Q("49.804 mm")))
sketch1.addConstraint(Sketcher.Constraint("DistanceY", -1, 1, 31, 2, Q("18.127 mm")))
sketch1.addConstraint(Sketcher.Constraint("DistanceX", 32, 2, -1, 1, Q("51.194 mm")))
sketch1.addConstraint(Sketcher.Constraint("DistanceY", -1, 1, 32, 2, Q("13.717 mm")))
sketch1.addConstraint(Sketcher.Constraint("DistanceX", 33, 2, -1, 1, Q("52.195 mm")))
sketch1.addConstraint(Sketcher.Constraint("DistanceY", -1, 1, 33, 2, Q("9.203 mm")))
sketch1.addConstraint(Sketcher.Constraint("DistanceX", 34, 2, -1, 1, Q("52.798 mm")))
sketch1.addConstraint(Sketcher.Constraint("DistanceY", -1, 1, 34, 2, Q("4.619 mm")))
sketch1.addConstraint(Sketcher.Constraint("DistanceX", 36, 2, -1, 1, Q("52.792 mm")))
sketch1.addConstraint(Sketcher.Constraint("DistanceY", 36, 2, -1, 1, Q("4.538 mm")))
sketch1.addConstraint(Sketcher.Constraint("DistanceX", 37, 2, -1, 1, Q("52.138 mm")))
sketch1.addConstraint(Sketcher.Constraint("DistanceY", 37, 2, -1, 1, Q("8.965 mm")))
sketch1.addConstraint(Sketcher.Constraint("DistanceX", 38, 2, -1, 1, Q("51.069 mm")))
sketch1.addConstraint(Sketcher.Constraint("DistanceY", 38, 2, -1, 1, Q("13.013 mm")))
sketch1.addConstraint(Sketcher.Constraint("DistanceX", 39, 2, -1, 1, Q("49.531 mm")))
sketch1.addConstraint(Sketcher.Constraint("DistanceX", 40, 2, -1, 1, Q("47.557 mm")))
sketch1.addConstraint(Sketcher.Constraint("DistanceY", 40, 2, -1, 1, Q("20.575 mm")))
sketch1.addConstraint(Sketcher.Constraint("DistanceX", 41, 2, -1, 1, Q("45.185 mm")))
sketch1.addConstraint(Sketcher.Constraint("DistanceY", 41, 2, -1, 1, Q("23.874 mm")))
sketch1.addConstraint(Sketcher.Constraint("DistanceX", 42, 2, -1, 1, Q("42.441 mm")))
sketch1.addConstraint(Sketcher.Constraint("DistanceY", 42, 2, -1, 1, Q("26.865 mm")))
sketch1.addConstraint(Sketcher.Constraint("DistanceX", 43, 2, -1, 1, Q("39.386 mm")))
sketch1.addConstraint(Sketcher.Constraint("DistanceY", 43, 2, -1, 1, Q("29.472 mm")))
sketch1.addConstraint(Sketcher.Constraint("DistanceX", 44, 2, -1, 1, Q("36.063 mm")))
sketch1.addConstraint(Sketcher.Constraint("DistanceY", 44, 2, -1, 1, Q("31.683 mm")))
sketch1.addConstraint(Sketcher.Constraint("DistanceX", 45, 2, -1, 1, Q("32.551 mm")))
sketch1.addConstraint(Sketcher.Constraint("DistanceY", 45, 2, -1, 1, Q("33.456 mm")))
sketch1.addConstraint(Sketcher.Constraint("DistanceX", 46, 2, -1, 1, Q("28.863 mm")))
sketch1.addConstraint(Sketcher.Constraint("DistanceY", 46, 2, -1, 1, Q("34.852 mm")))
sketch1.addConstraint(Sketcher.Constraint("DistanceX", 47, 2, -1, 1, Q("25.036 mm")))
sketch1.addConstraint(Sketcher.Constraint("DistanceY", 47, 2, -1, 1, Q("35.873 mm")))
sketch1.addConstraint(Sketcher.Constraint("DistanceX", 48, 2, -1, 1, Q("21.187 mm")))
sketch1.addConstraint(Sketcher.Constraint("DistanceY", 48, 2, -1, 1, Q("36.513 mm")))
sketch1.addConstraint(Sketcher.Constraint("DistanceX", 49, 2, -1, 1, Q("17.358 mm")))
sketch1.addConstraint(Sketcher.Constraint("DistanceY", 50, 2, -1, 1, Q("36.793 mm")))
sketch1.addConstraint(Sketcher.Constraint("DistanceX", 51, 2, -1, 1, Q("9.807 mm")))
sketch1.addConstraint(Sketcher.Constraint("DistanceY", 51, 2, -1, 1, Q("36.517 mm")))
sketch1.addConstraint(Sketcher.Constraint("DistanceX", 52, 2, -1, 1, Q("6.123 mm")))
sketch1.addConstraint(Sketcher.Constraint("DistanceY", 52, 2, -1, 1, Q("36.017 mm")))
sketch1.addConstraint(Sketcher.Constraint("DistanceX", 53, 2, -1, 1, Q("2.511 mm")))
sketch1.addConstraint(Sketcher.Constraint("DistanceY", 53, 2, -1, 1, Q("35.329 mm")))
sketch1.addConstraint(Sketcher.Constraint("DistanceX", -1, 1, 54, 2, Q("1.018 mm")))
sketch1.addConstraint(Sketcher.Constraint("DistanceY", 54, 2, -1, 1, Q("34.495 mm")))
sketch1.addConstraint(Sketcher.Constraint("DistanceX", -1, 1, 55, 2, Q("4.452 mm")))
sketch1.addConstraint(Sketcher.Constraint("DistanceY", 55, 2, -1, 1, Q("33.532 mm")))
sketch1.addConstraint(Sketcher.Constraint("DistanceX", -1, 1, 56, 2, Q("7.819 mm")))
sketch1.addConstraint(Sketcher.Constraint("DistanceY", 56, 2, -1, 1, Q("32.438 mm")))
sketch1.addConstraint(Sketcher.Constraint("DistanceX", -1, 1, 57, 2, Q("10.907 mm")))
sketch1.addConstraint(Sketcher.Constraint("DistanceY", 57, 2, -1, 1, Q("31.265 mm")))
sketch1.addConstraint(Sketcher.Constraint("DistanceY", 59, 2, -1, 1, Q("28.579 mm")))
sketch1.addConstraint(Sketcher.Constraint("DistanceX", -1, 1, 60, 2, Q("18.928 mm")))
sketch1.addConstraint(Sketcher.Constraint("DistanceY", 60, 2, -1, 1, Q("27.032 mm")))
sketch1.addConstraint(Sketcher.Constraint("DistanceX", -1, 1, 61, 2, Q("21.212 mm")))
sketch1.addConstraint(Sketcher.Constraint("DistanceY", 61, 2, -1, 1, Q("25.279 mm")))
sketch1.addConstraint(Sketcher.Constraint("DistanceX", -1, 1, 62, 2, Q("23.335 mm")))
sketch1.addConstraint(Sketcher.Constraint("DistanceY", 62, 2, -1, 1, Q("23.335 mm")))
sketch1.addConstraint(Sketcher.Constraint("DistanceX", -1, 1, 63, 2, Q("25.279 mm")))
sketch1.addConstraint(Sketcher.Constraint("DistanceX", -1, 1, 64, 2, Q("27.032 mm")))
sketch1.addConstraint(Sketcher.Constraint("DistanceX", -1, 1, 66, 2, Q("29.908 mm")))
sketch1.addConstraint(Sketcher.Constraint("DistanceY", 66, 2, -1, 1, Q("13.946 mm")))
sketch1.addConstraint(Sketcher.Constraint("DistanceY", 67, 2, -1, 1, Q("11.287 mm")))
sketch1.addConstraint(Sketcher.Constraint("DistanceX", -1, 1, 68, 2, Q("31.876 mm")))
sketch1.addConstraint(Sketcher.Constraint("DistanceY", 68, 2, -1, 1, Q("8.541 mm")))
sketch1.addConstraint(Sketcher.Constraint("DistanceX", -1, 1, 69, 2, Q("32.499 mm")))
sketch1.addConstraint(Sketcher.Constraint("DistanceX", -1, 1, 70, 2, Q("32.874 mm")))
sketch1.addConstraint(Sketcher.Constraint("DistanceY", 70, 2, -1, 1, Q("2.876 mm")))
pad1 = body.newObject("PartDesign::Pad", "Pad")
pad1.Profile = sketch1
pad1.Length = 14

# Sketch on XY plane
sketch2 = body.newObject("Sketcher::SketchObject", "Sketch001")
sketch2.AttachmentSupport = (doc.getObject("XY_Plane"), [""])
sketch2.MapMode = "FlatFace"
sketch2.addGeometry(Part.Circle(V(0, 0, 0), V(0, 0, 1), 25), False)
sketch2.addConstraint(Sketcher.Constraint("Coincident", 0, 3, -1, 1))
sketch2.addConstraint(Sketcher.Constraint("Diameter", 0, Q("50 mm")))
pad2 = body.newObject("PartDesign::Pad", "Pad001")
pad2.Profile = sketch2
pad2.Length = 30

# Sketch on XY plane
sketch3 = body.newObject("Sketcher::SketchObject", "Sketch002")
sketch3.AttachmentSupport = (doc.getObject("XY_Plane"), [""])
sketch3.MapMode = "FlatFace"
sketch3.addGeometry(Part.Circle(V(0, 0, 0), V(0, 0, 1), 12), False)
sketch3.addConstraint(Sketcher.Constraint("Coincident", 0, 3, -1, 1))
sketch3.addConstraint(Sketcher.Constraint("Diameter", 0, Q("25 mm")))
pocket1 = body.newObject("PartDesign::Pocket", "Pocket")
pocket1.Profile = sketch3
pocket1.Type = "ThroughAll"
pocket1.Reversed = True

# Sketch on XY plane
sketch4 = body.newObject("Sketcher::SketchObject", "Sketch003")
sketch4.AttachmentSupport = (doc.getObject("XY_Plane"), [""])
sketch4.MapMode = "FlatFace"
sketch4.addGeometry(Part.LineSegment(V(0, 4, 0), V(0, -4, 0)), False)
sketch4.addGeometry(Part.LineSegment(V(0, -4, 0), V(16, -4, 0)), False)
sketch4.addGeometry(Part.LineSegment(V(16, -4, 0), V(16, 4, 0)), False)
sketch4.addGeometry(Part.LineSegment(V(16, 4, 0), V(0, 4, 0)), False)
sketch4.addConstraint(Sketcher.Constraint("Coincident", 0, 2, 1, 1))
sketch4.addConstraint(Sketcher.Constraint("Coincident", 1, 2, 2, 1))
sketch4.addConstraint(Sketcher.Constraint("Coincident", 2, 2, 3, 1))
sketch4.addConstraint(Sketcher.Constraint("Coincident", 3, 2, 0, 1))
sketch4.addConstraint(Sketcher.Constraint("Vertical", 0))
sketch4.addConstraint(Sketcher.Constraint("Horizontal", 1))
sketch4.addConstraint(Sketcher.Constraint("Vertical", 2))
sketch4.addConstraint(Sketcher.Constraint("Horizontal", 3))
sketch4.addConstraint(Sketcher.Constraint("Symmetric", 0, 2, 3, 2, -1, 1))
sketch4.addConstraint(Sketcher.Constraint("DistanceY", 0, 2, 0, 1, Q("8 mm")))
sketch4.addConstraint(Sketcher.Constraint("DistanceX", 1, 1, 1, 2, Q("15.8 mm")))
pocket2 = body.newObject("PartDesign::Pocket", "Pocket001")
pocket2.Profile = sketch4
pocket2.Type = "ThroughAll"
pocket2.Reversed = True

# Sketch on YZ plane
sketch5 = body.newObject("Sketcher::SketchObject", "Sketch004")
sketch5.AttachmentSupport = (doc.getObject("YZ_Plane"), [""])
sketch5.MapMode = "FlatFace"
sketch5.AttachmentOffset = App.Placement(V(0, 0, 25), App.Rotation())
sketch5.addGeometry(Part.Circle(V(0, 22, 0), V(0, 0, 1), 2.5), False)
sketch5.addConstraint(Sketcher.Constraint("PointOnObject", 0, 3, -2))
sketch5.addConstraint(Sketcher.Constraint("Diameter", 0, Q("5 mm")))
sketch5.addConstraint(Sketcher.Constraint("DistanceY", -1, 1, 0, 3, Q("22 mm")))
pocket3 = body.newObject("PartDesign::Pocket", "Pocket002")
pocket3.Profile = sketch5
pocket3.Length = 12.6

doc.recompute()
